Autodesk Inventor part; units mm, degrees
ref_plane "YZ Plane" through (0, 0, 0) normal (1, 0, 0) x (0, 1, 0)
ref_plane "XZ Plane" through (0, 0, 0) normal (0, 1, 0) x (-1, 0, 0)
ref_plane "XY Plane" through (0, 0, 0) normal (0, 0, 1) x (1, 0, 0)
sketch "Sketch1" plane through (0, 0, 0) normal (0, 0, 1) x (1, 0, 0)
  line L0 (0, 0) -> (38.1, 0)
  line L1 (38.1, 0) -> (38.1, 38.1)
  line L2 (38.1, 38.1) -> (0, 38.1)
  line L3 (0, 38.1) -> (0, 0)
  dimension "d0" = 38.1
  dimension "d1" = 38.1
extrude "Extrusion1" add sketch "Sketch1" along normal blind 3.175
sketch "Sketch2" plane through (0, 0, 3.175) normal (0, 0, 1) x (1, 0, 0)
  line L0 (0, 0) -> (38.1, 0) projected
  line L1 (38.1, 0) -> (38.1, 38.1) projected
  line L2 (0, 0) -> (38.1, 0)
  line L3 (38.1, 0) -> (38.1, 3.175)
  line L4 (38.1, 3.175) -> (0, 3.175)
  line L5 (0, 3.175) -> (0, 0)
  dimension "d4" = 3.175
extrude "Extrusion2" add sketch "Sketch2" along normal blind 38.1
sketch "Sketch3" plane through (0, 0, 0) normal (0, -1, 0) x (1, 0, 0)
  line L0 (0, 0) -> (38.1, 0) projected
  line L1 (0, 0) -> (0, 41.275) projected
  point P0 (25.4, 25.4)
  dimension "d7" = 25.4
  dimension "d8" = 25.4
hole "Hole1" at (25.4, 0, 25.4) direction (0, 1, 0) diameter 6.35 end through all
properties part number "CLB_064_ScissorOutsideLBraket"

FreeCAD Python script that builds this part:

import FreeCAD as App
import Part
import Sketcher
from FreeCAD import Vector
Q = App.Units.Quantity


def add_polygon(sketch, points):
    """Adds a closed chain of lines whose ends are joined by coincident constraints."""
    first, n = sketch.GeometryCount, len(points)
    for a, b in zip(points, points[1:] + points[:1]):
        sketch.addGeometry(Part.LineSegment(App.Vector(*a, 0), App.Vector(*b, 0)), False)
    for i in range(n):
        sketch.addConstraint(Sketcher.Constraint("Coincident", first + i, 2, first + (i + 1) % n, 1))

doc = App.newDocument("Part")
params = doc.addObject("Spreadsheet::Sheet", "Params")
for row, (alias, value) in enumerate([
    ("sketch1_width", "1.5 in"),
    ("pad1_length", "0.125 in"),
    ("sketch2_height", "0.125 in"),
    ("sketch2_width", "1.5 in"),
    ("pad2_length", "1.5 in"),
    ("sketch3_diameter", "0.25 in"),
    ("hole_diameter", "0.25 in"),
], start=1):
    params.set(f"A{row}", alias)
    params.set(f"B{row}", "=" + value)
    params.setAlias(f"B{row}", alias)

body = doc.addObject("PartDesign::Body", "Body")

# Sketch on XY plane
sketch1 = body.newObject("Sketcher::SketchObject", "Sketch")
sketch1.AttachmentSupport = (doc.getObject("XY_Plane"), [""])
sketch1.MapMode = "FlatFace"
add_polygon(sketch1, [(0, 38), (0, 0), (38, 0), (38, 38)])  # lines 0-3
sketch1.addConstraint(Sketcher.Constraint("Vertical", 0))
sketch1.addConstraint(Sketcher.Constraint("Horizontal", 1))
sketch1.addConstraint(Sketcher.Constraint("Vertical", 2))
sketch1.addConstraint(Sketcher.Constraint("Horizontal", 3))
sketch1.addConstraint(Sketcher.Constraint("Coincident", 0, 2, -1, 1))
sketch1.addConstraint(Sketcher.Constraint("Equal", 3, 0))
sketch1.addConstraint(Sketcher.Constraint("DistanceX", 1, 1, 1, 2, Q("1.5 in")))
sketch1.setExpression("Constraints[10]", "Params.sketch1_width")
pad1 = body.newObject("PartDesign::Pad", "Pad")
pad1.Profile = sketch1
pad1.setExpression("Length", "Params.pad1_length")

# Sketch on XY plane
sketch2 = body.newObject("Sketcher::SketchObject", "Sketch001")
sketch2.AttachmentSupport = (doc.getObject("XY_Plane"), [""])
sketch2.MapMode = "FlatFace"
sketch2.AttachmentOffset = App.Placement(Vector(0, 0, 0.125 * 25.4), App.Rotation())
add_polygon(sketch2, [(0, 3.2), (0, 0), (38.1, 0), (38.1, 3.2)])  # lines 0-3
sketch2.addConstraint(Sketcher.Constraint("Vertical", 0))
sketch2.addConstraint(Sketcher.Constraint("Horizontal", 1))
sketch2.addConstraint(Sketcher.Constraint("Vertical", 2))
sketch2.addConstraint(Sketcher.Constraint("Horizontal", 3))
sketch2.addConstraint(Sketcher.Constraint("Coincident", 0, 2, -1, 1))
sketch2.addConstraint(Sketcher.Constraint("DistanceY", 0, 2, 0, 1, Q("0.125 in")))
sketch2.addConstraint(Sketcher.Constraint("DistanceX", 1, 1, 1, 2, Q("1.5 in")))
sketch2.setExpression("Constraints[9]", "Params.sketch2_height")
sketch2.setExpression("Constraints[10]", "Params.sketch2_width")
pad2 = body.newObject("PartDesign::Pad", "Pad001")
pad2.Profile = sketch2
pad2.setExpression("Length", "Params.pad2_length")

# Sketch on XZ plane
sketch3 = body.newObject("Sketcher::SketchObject", "Sketch002")
sketch3.AttachmentSupport = (doc.getObject("XZ_Plane"), [""])
sketch3.MapMode = "FlatFace"
sketch3.addGeometry(Part.Circle(Vector(25.4, 25.4, 0), Vector(0, 0, 1), 3.2), False)
sketch3.addConstraint(Sketcher.Constraint("Diameter", 0, Q("0.25 in")))
sketch3.addConstraint(Sketcher.Constraint("DistanceX", -1, 1, 0, 3, Q("1 in")))
sketch3.addConstraint(Sketcher.Constraint("DistanceY", -1, 1, 0, 3, Q("1 in")))
sketch3.setExpression("Constraints[0]", "Params.sketch3_diameter")
doc.recompute()
hole = body.newObject("PartDesign::Hole", "Hole")
hole.Profile = sketch3
hole.ThreadType = "None"
hole.setExpression("Diameter", "Params.hole_diameter")
hole.DepthType = "ThroughAll"

doc.recompute()
